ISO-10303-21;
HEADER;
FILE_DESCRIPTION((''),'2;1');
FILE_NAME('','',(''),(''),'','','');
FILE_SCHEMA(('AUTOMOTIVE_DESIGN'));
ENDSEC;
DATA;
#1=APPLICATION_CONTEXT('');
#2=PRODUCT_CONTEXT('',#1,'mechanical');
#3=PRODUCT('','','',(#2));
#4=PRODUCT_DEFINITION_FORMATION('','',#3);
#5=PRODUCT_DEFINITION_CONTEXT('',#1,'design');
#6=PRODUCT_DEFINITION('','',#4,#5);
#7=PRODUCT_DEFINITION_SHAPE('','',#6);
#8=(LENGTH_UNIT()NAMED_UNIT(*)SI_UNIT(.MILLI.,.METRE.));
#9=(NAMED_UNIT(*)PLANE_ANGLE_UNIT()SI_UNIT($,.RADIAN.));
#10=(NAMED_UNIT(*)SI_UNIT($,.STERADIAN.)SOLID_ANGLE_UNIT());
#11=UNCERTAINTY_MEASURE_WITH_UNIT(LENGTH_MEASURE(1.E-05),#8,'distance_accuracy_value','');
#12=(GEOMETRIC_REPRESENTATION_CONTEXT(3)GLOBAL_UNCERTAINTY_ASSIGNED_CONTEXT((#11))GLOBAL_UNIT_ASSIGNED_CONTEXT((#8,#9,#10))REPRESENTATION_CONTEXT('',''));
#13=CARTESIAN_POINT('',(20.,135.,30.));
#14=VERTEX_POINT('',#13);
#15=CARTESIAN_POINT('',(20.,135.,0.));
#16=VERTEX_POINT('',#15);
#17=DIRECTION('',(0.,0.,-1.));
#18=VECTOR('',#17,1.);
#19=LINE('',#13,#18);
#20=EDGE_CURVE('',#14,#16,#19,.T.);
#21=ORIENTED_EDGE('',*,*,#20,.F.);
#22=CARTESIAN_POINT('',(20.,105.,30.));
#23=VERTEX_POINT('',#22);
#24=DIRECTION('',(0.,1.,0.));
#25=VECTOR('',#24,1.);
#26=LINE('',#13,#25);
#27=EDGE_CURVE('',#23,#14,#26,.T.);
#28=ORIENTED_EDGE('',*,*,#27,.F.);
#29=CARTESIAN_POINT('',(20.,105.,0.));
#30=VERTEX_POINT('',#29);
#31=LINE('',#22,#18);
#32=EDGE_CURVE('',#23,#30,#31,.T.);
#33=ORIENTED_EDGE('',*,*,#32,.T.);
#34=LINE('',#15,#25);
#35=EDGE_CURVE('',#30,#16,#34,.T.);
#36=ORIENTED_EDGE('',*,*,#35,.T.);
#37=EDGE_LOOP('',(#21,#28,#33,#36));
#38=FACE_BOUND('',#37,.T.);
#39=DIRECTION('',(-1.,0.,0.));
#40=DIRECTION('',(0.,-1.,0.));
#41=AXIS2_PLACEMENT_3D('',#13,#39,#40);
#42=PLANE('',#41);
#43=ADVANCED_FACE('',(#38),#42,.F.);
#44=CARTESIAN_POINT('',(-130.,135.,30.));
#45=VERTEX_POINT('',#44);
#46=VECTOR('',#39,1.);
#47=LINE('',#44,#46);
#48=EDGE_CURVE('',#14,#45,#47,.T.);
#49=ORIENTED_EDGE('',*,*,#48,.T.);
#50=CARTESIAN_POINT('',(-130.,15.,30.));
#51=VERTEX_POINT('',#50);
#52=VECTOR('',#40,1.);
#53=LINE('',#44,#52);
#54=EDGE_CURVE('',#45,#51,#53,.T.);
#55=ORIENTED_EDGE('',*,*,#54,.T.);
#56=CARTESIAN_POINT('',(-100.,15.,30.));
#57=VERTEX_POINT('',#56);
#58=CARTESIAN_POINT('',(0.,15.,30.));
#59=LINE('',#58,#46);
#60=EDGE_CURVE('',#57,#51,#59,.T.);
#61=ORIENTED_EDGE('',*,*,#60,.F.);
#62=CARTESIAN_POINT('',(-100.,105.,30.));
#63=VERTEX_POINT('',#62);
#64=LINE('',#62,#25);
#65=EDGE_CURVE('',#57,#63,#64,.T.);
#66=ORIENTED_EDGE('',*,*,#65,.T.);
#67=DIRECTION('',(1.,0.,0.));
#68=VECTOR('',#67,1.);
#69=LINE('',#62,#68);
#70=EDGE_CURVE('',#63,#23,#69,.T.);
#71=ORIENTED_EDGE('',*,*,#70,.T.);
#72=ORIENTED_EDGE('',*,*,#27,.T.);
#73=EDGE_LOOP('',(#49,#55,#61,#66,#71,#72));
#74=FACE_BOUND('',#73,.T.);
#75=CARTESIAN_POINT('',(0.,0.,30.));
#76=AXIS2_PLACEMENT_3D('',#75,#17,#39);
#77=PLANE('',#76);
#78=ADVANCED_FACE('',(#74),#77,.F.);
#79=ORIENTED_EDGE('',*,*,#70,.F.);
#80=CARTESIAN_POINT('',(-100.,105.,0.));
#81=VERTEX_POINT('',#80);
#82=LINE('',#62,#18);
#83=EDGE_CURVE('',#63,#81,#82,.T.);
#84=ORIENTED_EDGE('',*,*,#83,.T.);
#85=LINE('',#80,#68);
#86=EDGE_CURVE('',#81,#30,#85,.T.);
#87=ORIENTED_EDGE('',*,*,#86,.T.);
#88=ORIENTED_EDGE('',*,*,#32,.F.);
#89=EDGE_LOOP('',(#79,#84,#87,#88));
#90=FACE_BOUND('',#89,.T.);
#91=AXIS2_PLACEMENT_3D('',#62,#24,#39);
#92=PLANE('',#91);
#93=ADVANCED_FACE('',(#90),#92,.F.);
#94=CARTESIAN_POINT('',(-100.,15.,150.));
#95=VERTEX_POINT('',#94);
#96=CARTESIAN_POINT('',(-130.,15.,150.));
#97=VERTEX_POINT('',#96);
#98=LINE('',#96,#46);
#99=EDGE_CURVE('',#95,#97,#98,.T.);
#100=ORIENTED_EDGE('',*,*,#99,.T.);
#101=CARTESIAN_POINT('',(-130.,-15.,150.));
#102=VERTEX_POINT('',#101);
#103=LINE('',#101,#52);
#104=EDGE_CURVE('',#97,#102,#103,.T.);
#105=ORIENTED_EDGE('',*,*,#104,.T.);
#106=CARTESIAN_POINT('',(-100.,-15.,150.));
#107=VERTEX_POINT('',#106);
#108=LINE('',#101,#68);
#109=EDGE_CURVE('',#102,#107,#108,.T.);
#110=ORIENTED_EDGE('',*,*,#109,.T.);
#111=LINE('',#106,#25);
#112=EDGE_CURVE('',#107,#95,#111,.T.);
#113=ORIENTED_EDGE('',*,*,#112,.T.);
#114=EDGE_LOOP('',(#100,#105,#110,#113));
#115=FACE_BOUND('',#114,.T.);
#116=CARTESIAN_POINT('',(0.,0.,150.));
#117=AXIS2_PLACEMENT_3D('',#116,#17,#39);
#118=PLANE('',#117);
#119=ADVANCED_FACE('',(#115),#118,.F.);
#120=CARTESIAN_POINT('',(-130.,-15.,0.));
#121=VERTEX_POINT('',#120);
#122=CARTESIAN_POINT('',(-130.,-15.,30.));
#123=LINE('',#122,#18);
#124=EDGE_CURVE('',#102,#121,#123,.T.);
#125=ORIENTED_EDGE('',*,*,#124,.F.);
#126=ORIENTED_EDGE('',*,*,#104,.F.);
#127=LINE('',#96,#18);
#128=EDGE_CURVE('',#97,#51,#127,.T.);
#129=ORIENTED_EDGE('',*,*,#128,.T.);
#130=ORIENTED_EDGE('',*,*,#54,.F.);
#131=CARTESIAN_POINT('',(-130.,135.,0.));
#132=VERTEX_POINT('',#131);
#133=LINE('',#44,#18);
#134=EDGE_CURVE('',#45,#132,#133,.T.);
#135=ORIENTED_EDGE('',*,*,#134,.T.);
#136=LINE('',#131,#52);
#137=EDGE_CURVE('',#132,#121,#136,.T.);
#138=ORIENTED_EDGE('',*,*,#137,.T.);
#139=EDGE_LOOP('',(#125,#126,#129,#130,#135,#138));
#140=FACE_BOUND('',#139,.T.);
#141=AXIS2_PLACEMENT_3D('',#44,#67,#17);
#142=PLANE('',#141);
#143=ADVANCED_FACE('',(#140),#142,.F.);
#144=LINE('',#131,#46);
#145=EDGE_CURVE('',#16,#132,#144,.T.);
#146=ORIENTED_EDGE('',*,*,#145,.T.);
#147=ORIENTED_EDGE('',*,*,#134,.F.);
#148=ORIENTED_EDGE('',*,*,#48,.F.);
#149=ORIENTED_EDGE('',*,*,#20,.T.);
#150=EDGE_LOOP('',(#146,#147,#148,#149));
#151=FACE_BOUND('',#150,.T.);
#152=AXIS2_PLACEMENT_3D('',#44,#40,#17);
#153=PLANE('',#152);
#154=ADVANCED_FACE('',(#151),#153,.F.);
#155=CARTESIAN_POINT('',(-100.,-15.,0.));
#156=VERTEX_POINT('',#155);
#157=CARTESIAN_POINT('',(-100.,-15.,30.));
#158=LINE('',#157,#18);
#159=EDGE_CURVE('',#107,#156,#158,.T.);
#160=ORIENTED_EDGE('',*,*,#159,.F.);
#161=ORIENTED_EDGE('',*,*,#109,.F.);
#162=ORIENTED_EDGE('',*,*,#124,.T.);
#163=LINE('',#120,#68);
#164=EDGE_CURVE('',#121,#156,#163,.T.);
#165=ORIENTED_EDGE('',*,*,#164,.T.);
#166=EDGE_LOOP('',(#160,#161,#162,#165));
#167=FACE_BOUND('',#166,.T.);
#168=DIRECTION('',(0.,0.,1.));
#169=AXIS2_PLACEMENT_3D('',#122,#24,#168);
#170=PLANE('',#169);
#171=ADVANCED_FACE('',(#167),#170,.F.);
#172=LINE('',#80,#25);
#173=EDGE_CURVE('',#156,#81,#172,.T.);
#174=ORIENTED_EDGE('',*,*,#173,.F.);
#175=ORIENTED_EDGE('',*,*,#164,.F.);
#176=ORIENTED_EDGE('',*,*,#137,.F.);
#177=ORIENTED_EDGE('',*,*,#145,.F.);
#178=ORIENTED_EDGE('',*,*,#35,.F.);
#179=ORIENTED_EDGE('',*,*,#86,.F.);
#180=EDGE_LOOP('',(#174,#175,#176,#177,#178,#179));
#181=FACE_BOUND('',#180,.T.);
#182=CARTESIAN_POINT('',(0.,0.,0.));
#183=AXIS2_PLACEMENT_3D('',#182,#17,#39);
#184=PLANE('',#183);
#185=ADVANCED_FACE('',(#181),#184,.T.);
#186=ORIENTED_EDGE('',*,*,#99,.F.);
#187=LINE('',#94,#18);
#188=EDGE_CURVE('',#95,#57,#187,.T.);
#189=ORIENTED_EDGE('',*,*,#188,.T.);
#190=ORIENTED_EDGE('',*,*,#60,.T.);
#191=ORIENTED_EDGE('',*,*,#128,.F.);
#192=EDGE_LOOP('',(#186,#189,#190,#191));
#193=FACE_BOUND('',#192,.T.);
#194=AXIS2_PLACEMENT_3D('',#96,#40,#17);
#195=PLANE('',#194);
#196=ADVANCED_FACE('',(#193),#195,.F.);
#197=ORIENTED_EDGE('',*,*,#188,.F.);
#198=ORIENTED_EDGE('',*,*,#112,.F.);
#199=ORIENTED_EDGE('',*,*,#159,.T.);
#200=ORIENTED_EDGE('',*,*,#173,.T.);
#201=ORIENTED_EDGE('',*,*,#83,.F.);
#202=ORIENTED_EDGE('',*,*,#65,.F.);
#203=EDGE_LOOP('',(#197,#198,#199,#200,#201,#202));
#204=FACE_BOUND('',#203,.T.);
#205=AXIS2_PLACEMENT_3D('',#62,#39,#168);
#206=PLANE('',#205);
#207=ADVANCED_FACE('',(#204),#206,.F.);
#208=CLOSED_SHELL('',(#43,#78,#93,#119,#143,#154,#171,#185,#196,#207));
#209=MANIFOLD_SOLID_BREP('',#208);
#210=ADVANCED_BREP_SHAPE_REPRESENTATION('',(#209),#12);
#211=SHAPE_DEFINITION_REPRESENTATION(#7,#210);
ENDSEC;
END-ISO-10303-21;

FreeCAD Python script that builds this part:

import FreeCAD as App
import Part
import Sketcher
from FreeCAD import Vector
Q = App.Units.Quantity


def add_polygon(sketch, points):
    """Adds a closed chain of lines whose ends are joined by coincident constraints."""
    first, n = sketch.GeometryCount, len(points)
    for a, b in zip(points, points[1:] + points[:1]):
        sketch.addGeometry(Part.LineSegment(App.Vector(*a, 0), App.Vector(*b, 0)), False)
    for i in range(n):
        sketch.addConstraint(Sketcher.Constraint("Coincident", first + i, 2, first + (i + 1) % n, 1))

doc = App.newDocument("Part")
params = doc.addObject("Spreadsheet::Sheet", "Params")
for row, (alias, value) in enumerate([
    ("sketch1_width", "30 mm"),
    ("sketch1_width2", "120 mm"),
    ("pad1_length", "30 mm"),
    ("sketch2_width", "30 mm"),
    ("pad2_length", "150 mm"),
], start=1):
    params.set(f"A{row}", alias)
    params.set(f"B{row}", "=" + value)
    params.setAlias(f"B{row}", alias)

body = doc.addObject("PartDesign::Body", "Body")

# Sketch on XY plane
sketch1 = body.newObject("Sketcher::SketchObject", "Sketch")
sketch1.AttachmentSupport = (doc.getObject("XY_Plane"), [""])
sketch1.MapMode = "FlatFace"
add_polygon(sketch1, [(-130, 135), (-130, -15), (-100, -15), (-100, 105), (20, 105), (20, 135)])  # lines 0-5
sketch1.addConstraint(Sketcher.Constraint("Vertical", 0))
sketch1.addConstraint(Sketcher.Constraint("Horizontal", 1))
sketch1.addConstraint(Sketcher.Constraint("Vertical", 2))
sketch1.addConstraint(Sketcher.Constraint("Horizontal", 3))
sketch1.addConstraint(Sketcher.Constraint("Vertical", 4))
sketch1.addConstraint(Sketcher.Constraint("Horizontal", 5))
sketch1.addConstraint(Sketcher.Constraint("Equal", 5, 0))
sketch1.addConstraint(Sketcher.Constraint("Equal", 3, 2))
sketch1.addConstraint(Sketcher.Constraint("DistanceX", 1, 1, 1, 2, Q("30 mm")))
sketch1.addConstraint(Sketcher.Constraint("DistanceX", 3, 1, 3, 2, Q("120 mm")))
sketch1.addConstraint(Sketcher.Constraint("DistanceX", 0, 2, -1, 1, Q("130 mm")))
sketch1.addConstraint(Sketcher.Constraint("DistanceY", 0, 2, -1, 1, Q("15 mm")))
sketch1.setExpression("Constraints[14]", "Params.sketch1_width")
sketch1.setExpression("Constraints[15]", "Params.sketch1_width2")
pad1 = body.newObject("PartDesign::Pad", "Pad")
pad1.Profile = sketch1
pad1.setExpression("Length", "Params.pad1_length")

# Sketch on XY plane
sketch2 = body.newObject("Sketcher::SketchObject", "Sketch001")
sketch2.AttachmentSupport = (doc.getObject("XY_Plane"), [""])
sketch2.MapMode = "FlatFace"
add_polygon(sketch2, [(-130, 15), (-130, -15), (-100, -15), (-100, 15)])  # lines 0-3
sketch2.addConstraint(Sketcher.Constraint("Vertical", 0))
sketch2.addConstraint(Sketcher.Constraint("Horizontal", 1))
sketch2.addConstraint(Sketcher.Constraint("Vertical", 2))
sketch2.addConstraint(Sketcher.Constraint("Horizontal", 3))
sketch2.addConstraint(Sketcher.Constraint("Equal", 3, 0))
sketch2.addConstraint(Sketcher.Constraint("DistanceX", 1, 1, 1, 2, Q("30 mm")))
sketch2.addConstraint(Sketcher.Constraint("DistanceX", 0, 2, -1, 1, Q("130 mm")))
sketch2.addConstraint(Sketcher.Constraint("DistanceY", 0, 2, -1, 1, Q("15 mm")))
sketch2.setExpression("Constraints[9]", "Params.sketch2_width")
pad2 = body.newObject("PartDesign::Pad", "Pad001")
pad2.Profile = sketch2
pad2.setExpression("Length", "Params.pad2_length")

doc.recompute()
